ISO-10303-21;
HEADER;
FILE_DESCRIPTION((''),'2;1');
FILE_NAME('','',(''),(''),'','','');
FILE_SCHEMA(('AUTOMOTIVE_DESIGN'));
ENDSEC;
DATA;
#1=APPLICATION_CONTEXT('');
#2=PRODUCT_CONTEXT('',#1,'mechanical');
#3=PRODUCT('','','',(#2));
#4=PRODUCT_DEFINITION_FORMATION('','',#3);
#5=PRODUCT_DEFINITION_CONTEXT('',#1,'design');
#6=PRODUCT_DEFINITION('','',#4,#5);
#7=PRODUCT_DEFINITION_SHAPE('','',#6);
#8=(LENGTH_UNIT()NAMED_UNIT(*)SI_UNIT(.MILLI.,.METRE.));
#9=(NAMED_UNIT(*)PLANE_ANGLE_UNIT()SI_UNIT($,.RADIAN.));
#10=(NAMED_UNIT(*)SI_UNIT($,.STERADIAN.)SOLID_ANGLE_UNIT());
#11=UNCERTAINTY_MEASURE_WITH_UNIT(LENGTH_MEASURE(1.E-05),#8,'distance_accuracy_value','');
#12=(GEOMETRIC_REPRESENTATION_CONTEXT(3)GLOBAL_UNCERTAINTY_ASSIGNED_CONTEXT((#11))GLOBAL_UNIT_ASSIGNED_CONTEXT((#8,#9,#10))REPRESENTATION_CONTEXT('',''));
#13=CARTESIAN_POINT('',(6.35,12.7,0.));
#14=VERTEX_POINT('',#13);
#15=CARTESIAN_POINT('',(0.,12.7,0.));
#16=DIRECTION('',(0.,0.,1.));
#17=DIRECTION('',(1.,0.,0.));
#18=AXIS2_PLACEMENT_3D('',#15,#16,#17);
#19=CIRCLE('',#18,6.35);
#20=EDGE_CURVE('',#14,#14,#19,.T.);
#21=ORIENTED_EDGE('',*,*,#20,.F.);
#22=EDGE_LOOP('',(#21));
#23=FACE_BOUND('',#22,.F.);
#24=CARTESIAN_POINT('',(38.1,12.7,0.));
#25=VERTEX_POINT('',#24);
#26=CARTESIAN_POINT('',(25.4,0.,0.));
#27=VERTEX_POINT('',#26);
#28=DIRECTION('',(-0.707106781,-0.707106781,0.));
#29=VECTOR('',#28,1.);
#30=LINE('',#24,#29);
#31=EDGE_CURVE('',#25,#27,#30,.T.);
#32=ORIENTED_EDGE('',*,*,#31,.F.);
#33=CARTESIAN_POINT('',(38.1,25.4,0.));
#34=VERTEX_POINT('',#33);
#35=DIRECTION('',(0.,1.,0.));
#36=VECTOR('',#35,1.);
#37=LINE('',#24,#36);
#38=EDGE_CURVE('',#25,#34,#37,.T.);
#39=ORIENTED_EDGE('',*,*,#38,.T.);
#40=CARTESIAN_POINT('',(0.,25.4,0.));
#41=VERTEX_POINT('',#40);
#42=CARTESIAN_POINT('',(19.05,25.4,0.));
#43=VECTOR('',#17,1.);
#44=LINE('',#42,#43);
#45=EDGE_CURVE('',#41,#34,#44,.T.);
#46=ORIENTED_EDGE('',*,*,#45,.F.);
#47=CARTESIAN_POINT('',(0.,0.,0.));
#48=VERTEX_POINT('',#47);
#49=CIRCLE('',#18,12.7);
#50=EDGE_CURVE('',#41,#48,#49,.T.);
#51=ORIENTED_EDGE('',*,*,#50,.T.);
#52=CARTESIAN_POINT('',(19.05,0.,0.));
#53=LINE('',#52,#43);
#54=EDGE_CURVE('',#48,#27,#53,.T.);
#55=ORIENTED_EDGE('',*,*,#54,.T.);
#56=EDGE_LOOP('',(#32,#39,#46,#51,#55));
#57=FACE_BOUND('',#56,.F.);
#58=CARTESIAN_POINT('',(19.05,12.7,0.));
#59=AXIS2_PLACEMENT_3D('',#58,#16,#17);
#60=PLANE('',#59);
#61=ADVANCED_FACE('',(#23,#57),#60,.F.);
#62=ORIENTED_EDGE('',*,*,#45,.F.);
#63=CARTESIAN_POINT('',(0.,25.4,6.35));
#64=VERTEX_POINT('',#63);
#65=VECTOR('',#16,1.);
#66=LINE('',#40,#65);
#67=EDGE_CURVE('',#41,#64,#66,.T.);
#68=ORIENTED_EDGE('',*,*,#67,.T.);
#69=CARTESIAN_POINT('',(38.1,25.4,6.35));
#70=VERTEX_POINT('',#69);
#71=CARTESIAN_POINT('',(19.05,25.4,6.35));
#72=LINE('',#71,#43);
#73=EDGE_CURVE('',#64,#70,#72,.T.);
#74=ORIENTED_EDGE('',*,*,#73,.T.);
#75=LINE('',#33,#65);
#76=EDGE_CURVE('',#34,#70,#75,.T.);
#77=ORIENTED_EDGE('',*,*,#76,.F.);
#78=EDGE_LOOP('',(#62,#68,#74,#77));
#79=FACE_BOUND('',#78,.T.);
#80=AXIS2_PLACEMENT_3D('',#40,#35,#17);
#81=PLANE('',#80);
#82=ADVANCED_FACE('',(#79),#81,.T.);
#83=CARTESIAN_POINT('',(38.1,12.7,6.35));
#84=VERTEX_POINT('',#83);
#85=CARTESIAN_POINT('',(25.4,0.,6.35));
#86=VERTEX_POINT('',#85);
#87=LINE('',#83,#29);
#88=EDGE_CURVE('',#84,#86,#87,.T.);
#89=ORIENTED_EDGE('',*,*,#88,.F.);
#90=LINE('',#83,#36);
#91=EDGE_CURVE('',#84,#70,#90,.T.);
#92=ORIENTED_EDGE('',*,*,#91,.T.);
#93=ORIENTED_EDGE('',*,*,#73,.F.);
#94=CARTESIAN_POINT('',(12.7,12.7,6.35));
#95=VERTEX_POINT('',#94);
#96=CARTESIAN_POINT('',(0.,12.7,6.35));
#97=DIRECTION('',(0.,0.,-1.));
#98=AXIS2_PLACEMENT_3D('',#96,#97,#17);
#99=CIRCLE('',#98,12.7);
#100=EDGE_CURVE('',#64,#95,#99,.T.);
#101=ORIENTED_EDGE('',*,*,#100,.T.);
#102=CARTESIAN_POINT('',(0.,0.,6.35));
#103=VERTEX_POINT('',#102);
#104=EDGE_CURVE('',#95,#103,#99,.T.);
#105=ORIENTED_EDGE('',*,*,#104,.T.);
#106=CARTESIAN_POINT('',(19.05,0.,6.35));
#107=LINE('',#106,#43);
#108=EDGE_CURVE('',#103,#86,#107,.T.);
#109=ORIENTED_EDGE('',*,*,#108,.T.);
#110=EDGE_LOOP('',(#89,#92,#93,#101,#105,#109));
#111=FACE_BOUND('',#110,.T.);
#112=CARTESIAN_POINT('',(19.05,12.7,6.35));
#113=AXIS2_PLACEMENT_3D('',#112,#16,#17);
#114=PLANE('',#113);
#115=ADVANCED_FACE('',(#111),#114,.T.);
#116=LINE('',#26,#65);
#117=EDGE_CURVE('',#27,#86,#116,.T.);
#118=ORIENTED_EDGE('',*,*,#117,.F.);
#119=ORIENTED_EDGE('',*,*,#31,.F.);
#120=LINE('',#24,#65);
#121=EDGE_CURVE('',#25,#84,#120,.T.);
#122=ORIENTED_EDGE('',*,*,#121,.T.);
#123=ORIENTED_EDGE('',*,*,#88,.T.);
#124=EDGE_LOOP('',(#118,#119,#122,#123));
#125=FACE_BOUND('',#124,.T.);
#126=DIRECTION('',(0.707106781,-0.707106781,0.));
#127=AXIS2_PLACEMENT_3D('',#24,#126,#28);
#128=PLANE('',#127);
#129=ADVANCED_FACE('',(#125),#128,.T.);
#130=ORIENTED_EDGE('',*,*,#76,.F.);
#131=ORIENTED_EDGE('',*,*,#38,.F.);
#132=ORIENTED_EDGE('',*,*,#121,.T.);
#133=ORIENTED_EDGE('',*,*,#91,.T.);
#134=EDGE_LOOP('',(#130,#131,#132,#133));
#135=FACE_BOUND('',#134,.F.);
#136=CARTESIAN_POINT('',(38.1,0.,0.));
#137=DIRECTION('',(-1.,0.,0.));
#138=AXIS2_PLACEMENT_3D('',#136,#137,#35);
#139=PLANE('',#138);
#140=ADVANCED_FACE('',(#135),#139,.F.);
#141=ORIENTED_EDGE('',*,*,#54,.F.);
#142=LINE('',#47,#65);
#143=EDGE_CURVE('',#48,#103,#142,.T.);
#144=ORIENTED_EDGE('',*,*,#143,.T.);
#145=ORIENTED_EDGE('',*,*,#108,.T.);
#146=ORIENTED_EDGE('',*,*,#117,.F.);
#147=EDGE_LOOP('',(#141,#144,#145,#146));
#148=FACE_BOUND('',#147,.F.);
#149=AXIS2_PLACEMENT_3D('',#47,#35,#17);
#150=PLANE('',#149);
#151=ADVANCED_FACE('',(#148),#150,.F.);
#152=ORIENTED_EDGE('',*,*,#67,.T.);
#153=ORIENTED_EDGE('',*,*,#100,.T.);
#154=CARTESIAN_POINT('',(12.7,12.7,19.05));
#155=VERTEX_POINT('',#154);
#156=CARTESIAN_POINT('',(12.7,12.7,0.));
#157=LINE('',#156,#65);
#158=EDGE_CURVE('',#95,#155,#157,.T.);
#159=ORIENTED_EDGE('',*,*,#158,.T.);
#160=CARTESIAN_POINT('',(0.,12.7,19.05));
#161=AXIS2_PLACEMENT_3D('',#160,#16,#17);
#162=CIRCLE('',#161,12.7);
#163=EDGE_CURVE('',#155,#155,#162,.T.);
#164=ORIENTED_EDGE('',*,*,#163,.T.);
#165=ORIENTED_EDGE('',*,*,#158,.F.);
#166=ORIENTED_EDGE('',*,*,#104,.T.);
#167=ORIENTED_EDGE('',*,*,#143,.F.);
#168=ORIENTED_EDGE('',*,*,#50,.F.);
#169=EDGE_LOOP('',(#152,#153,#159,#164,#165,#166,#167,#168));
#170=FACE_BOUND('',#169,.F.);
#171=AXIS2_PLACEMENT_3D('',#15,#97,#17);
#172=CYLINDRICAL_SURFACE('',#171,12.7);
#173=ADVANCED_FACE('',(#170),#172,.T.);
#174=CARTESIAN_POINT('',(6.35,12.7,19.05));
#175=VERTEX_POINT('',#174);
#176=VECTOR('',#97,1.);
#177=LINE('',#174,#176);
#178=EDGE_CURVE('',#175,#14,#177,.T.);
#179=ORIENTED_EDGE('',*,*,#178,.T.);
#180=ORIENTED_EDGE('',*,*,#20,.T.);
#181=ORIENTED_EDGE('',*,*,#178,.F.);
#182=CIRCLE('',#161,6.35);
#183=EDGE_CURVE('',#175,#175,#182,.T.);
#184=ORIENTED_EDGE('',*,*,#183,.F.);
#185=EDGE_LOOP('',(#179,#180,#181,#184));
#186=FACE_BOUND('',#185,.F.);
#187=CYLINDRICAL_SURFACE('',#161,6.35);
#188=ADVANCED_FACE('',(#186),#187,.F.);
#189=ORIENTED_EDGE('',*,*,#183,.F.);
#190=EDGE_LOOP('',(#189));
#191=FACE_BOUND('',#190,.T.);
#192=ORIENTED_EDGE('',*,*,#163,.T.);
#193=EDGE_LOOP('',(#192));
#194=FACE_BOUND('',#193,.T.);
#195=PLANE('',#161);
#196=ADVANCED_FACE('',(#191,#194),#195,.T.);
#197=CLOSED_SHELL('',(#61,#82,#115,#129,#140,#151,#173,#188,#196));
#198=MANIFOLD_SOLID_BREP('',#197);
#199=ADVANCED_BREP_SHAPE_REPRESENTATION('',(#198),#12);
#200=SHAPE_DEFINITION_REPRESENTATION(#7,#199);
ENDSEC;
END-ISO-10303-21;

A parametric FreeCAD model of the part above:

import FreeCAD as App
import Part
import Sketcher
from FreeCAD import Vector
Q = App.Units.Quantity


def add_polygon(sketch, points):
    """Adds a closed chain of lines whose ends are joined by coincident constraints."""
    first, n = sketch.GeometryCount, len(points)
    for a, b in zip(points, points[1:] + points[:1]):
        sketch.addGeometry(Part.LineSegment(App.Vector(*a, 0), App.Vector(*b, 0)), False)
    for i in range(n):
        sketch.addConstraint(Sketcher.Constraint("Coincident", first + i, 2, first + (i + 1) % n, 1))

doc = App.newDocument("Part")
body = doc.addObject("PartDesign::Body", "Body")

sketch1 = body.newObject("Sketcher::SketchObject", "Sketch")
sketch1.AttachmentSupport = (doc.getObject("XY_Plane"), [""])
sketch1.MapMode = "FlatFace"
add_polygon(sketch1, [(0, 25), (0, 0), (38, 0), (38, 25)])
sketch1.addConstraint([
    Sketcher.Constraint("Vertical", 0),
    Sketcher.Constraint("Horizontal", 1),
    Sketcher.Constraint("Vertical", 2),
    Sketcher.Constraint("Horizontal", 3),
    Sketcher.Constraint("Coincident", 0, 2, -1, 1),
    Sketcher.Constraint("DistanceY", 0, 2, 0, 1, Q("1 in")),
    Sketcher.Constraint("DistanceX", 1, 1, 1, 2, Q("1.5 in")),
])
pad1 = body.newObject("PartDesign::Pad", "Pad")
pad1.Profile = sketch1
pad1.Length = Q("0.25 in")

sketch2 = body.newObject("Sketcher::SketchObject", "Sketch001")
sketch2.AttachmentSupport = (doc.getObject("XY_Plane"), [""])
sketch2.MapMode = "FlatFace"
sketch2.addGeometry(Part.Circle(Vector(0, 13, 0), Vector(0, 0, 1), 13), False)
sketch2.addConstraint([
    Sketcher.Constraint("PointOnObject", 0, 3, -2),
    Sketcher.Constraint("Diameter", 0, Q("1 in")),
    Sketcher.Constraint("DistanceY", -1, 1, 0, 3, Q("0.5 in")),
])
pad2 = body.newObject("PartDesign::Pad", "Pad001")
pad2.Profile = sketch2
pad2.Length = Q("0.75 in")

sketch3 = body.newObject("Sketcher::SketchObject", "Sketch002")
sketch3.AttachmentSupport = (doc.getObject("XY_Plane"), [""])
sketch3.MapMode = "FlatFace"
sketch3.AttachmentOffset = App.Placement(Vector(0, 0, 0.75 * 25.4), App.Rotation())
sketch3.addGeometry(Part.Circle(Vector(0, 13, 0), Vector(0, 0, 1), 6), False)
sketch3.addConstraint([
    Sketcher.Constraint("PointOnObject", 0, 3, -2),
    Sketcher.Constraint("Diameter", 0, Q("0.5 in")),
    Sketcher.Constraint("DistanceY", -1, 1, 0, 3, Q("0.5 in")),
])
pocket1 = body.newObject("PartDesign::Pocket", "Pocket")
pocket1.Profile = sketch3
pocket1.Length = Q("0.75 in")

sketch4 = body.newObject("Sketcher::SketchObject", "Sketch003")
sketch4.AttachmentSupport = (doc.getObject("XY_Plane"), [""])
sketch4.MapMode = "FlatFace"
add_polygon(sketch4, [(38, 13), (25, 0), (38, 0)])
sketch4.addConstraint([
    Sketcher.Constraint("Horizontal", 1),
    Sketcher.Constraint("Vertical", 2),
    Sketcher.Constraint("PointOnObject", 0, 2, -1),
    Sketcher.Constraint("Equal", 1, 2),
    Sketcher.Constraint("DistanceX", 1, 1, 1, 2, Q("0.5 in")),
    Sketcher.Constraint("DistanceX", -1, 1, 0, 2, Q("1 in")),
])
pocket2 = body.newObject("PartDesign::Pocket", "Pocket001")
pocket2.Profile = sketch4
pocket2.Length = Q("0.25 in")
pocket2.Reversed = True

doc.recompute()
